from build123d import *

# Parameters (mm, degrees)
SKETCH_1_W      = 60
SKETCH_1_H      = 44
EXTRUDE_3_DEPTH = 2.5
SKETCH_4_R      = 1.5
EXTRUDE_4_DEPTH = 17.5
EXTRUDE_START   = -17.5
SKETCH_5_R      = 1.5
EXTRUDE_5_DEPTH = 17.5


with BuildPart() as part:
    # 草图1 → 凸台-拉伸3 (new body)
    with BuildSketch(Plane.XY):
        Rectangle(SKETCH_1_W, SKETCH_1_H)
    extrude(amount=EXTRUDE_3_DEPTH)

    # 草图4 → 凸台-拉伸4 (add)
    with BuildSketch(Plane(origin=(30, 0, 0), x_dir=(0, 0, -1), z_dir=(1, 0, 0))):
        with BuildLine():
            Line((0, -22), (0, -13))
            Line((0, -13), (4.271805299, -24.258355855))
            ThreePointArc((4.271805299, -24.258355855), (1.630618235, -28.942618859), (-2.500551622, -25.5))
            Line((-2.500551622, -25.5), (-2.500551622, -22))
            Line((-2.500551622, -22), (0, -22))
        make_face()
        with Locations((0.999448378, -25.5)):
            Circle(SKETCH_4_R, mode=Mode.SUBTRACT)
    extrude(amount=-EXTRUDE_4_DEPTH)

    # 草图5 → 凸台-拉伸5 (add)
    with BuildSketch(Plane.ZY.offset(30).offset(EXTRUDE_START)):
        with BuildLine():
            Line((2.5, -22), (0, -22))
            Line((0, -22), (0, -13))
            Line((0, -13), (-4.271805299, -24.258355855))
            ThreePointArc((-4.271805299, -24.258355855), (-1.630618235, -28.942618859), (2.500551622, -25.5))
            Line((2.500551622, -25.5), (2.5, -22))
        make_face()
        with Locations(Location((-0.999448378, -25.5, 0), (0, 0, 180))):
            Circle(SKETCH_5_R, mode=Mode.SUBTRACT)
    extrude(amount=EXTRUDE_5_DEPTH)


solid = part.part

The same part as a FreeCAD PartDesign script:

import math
import FreeCAD as App
import Part
import Sketcher
from FreeCAD import Vector

doc = App.newDocument("Part")
body = doc.addObject("PartDesign::Body", "Body")

# Sketch on XY plane
sketch1 = body.newObject("Sketcher::SketchObject", "Sketch")
sketch1.AttachmentSupport = (doc.getObject("XY_Plane"), [""])
sketch1.MapMode = "FlatFace"
sketch1.addGeometry(Part.LineSegment(Vector(-30, 22, 0), Vector(-30, -22, 0)), False)
sketch1.addGeometry(Part.LineSegment(Vector(-30, -22, 0), Vector(30, -22, 0)), False)
sketch1.addGeometry(Part.LineSegment(Vector(30, -22, 0), Vector(30, 22, 0)), False)
sketch1.addGeometry(Part.LineSegment(Vector(30, 22, 0), Vector(-30, 22, 0)), False)
sketch1.addConstraint(Sketcher.Constraint("Coincident", 0, 2, 1, 1))
sketch1.addConstraint(Sketcher.Constraint("Coincident", 1, 2, 2, 1))
sketch1.addConstraint(Sketcher.Constraint("Coincident", 2, 2, 3, 1))
sketch1.addConstraint(Sketcher.Constraint("Coincident", 3, 2, 0, 1))
sketch1.addConstraint(Sketcher.Constraint("Vertical", 0))
sketch1.addConstraint(Sketcher.Constraint("Horizontal", 1))
sketch1.addConstraint(Sketcher.Constraint("Vertical", 2))
sketch1.addConstraint(Sketcher.Constraint("Horizontal", 3))
sketch1.addConstraint(Sketcher.Constraint("Symmetric", 0, 2, 2, 2, -1, 1))
sketch1.addConstraint(Sketcher.Constraint("DistanceX", 1, 1, 1, 2, 60.0))
sketch1.addConstraint(Sketcher.Constraint("DistanceY", 0, 2, 0, 1, 44.0))
pad1 = body.newObject("PartDesign::Pad", "Pad")
pad1.Profile = sketch1
pad1.Length = 2.5

# Sketch on YZ plane
sketch2 = body.newObject("Sketcher::SketchObject", "Sketch001")
sketch2.AttachmentSupport = (doc.getObject("YZ_Plane"), [""])
sketch2.MapMode = "FlatFace"
sketch2.AttachmentOffset = App.Placement(Vector(0, 0, 30), App.Rotation())
sketch2.addGeometry(Part.LineSegment(Vector(-13, 0, 0), Vector(-22, 0, 0)), False)
sketch2.addGeometry(Part.LineSegment(Vector(-22, 0, 0), Vector(-22, 2.500552, 0)), False)
sketch2.addGeometry(Part.LineSegment(Vector(-22, 2.500552, 0), Vector(-25.5, 2.500552, 0)), False)
sketch2.addGeometry(Part.ArcOfCircle(Part.Circle(Vector(-25.5, -0.999448, 0), Vector(0, 0, 1), 3.5), math.radians(90), math.radians(290.778458)), False)
sketch2.addGeometry(Part.LineSegment(Vector(-24.258356, -4.271805, 0), Vector(-13, 0, 0)), False)
sketch2.addGeometry(Part.Circle(Vector(-25.5, -0.999448, 0), Vector(0, 0, 1), 1.5), False)
sketch2.addConstraint(Sketcher.Constraint("Coincident", 0, 2, 1, 1))
sketch2.addConstraint(Sketcher.Constraint("Coincident", 1, 2, 2, 1))
sketch2.addConstraint(Sketcher.Constraint("Tangent", 2, 2, 3, 1))
sketch2.addConstraint(Sketcher.Constraint("Tangent", 3, 2, 4, 1))
sketch2.addConstraint(Sketcher.Constraint("Coincident", 4, 2, 0, 1))
sketch2.addConstraint(Sketcher.Constraint("Horizontal", 0))
sketch2.addConstraint(Sketcher.Constraint("Vertical", 1))
sketch2.addConstraint(Sketcher.Constraint("Horizontal", 2))
sketch2.addConstraint(Sketcher.Constraint("Coincident", 5, 3, 3, 3))
sketch2.addConstraint(Sketcher.Constraint("PointOnObject", 0, 2, -1))
sketch2.addConstraint(Sketcher.Constraint("Diameter", 5, 3.0))
sketch2.addConstraint(Sketcher.Constraint("Radius", 3, 3.5))
sketch2.addConstraint(Sketcher.Constraint("DistanceX", 0, 2, 0, 1, 9.0))
sketch2.addConstraint(Sketcher.Constraint("DistanceX", 2, 2, 2, 1, 3.5))
sketch2.addConstraint(Sketcher.Constraint("DistanceX", 0, 2, -1, 1, 22.0))
sketch2.addConstraint(Sketcher.Constraint("DistanceY", 1, 1, 1, 2, 2.500552))
pad2 = body.newObject("PartDesign::Pad", "Pad001")
pad2.Profile = sketch2
pad2.Length = 17.5
pad2.Reversed = True

# Sketch on YZ plane
sketch3 = body.newObject("Sketcher::SketchObject", "Sketch002")
sketch3.AttachmentSupport = (doc.getObject("YZ_Plane"), [""])
sketch3.MapMode = "FlatFace"
sketch3.AttachmentOffset = App.Placement(Vector(0, 0, -12.5), App.Rotation())
sketch3.addGeometry(Part.LineSegment(Vector(-22, 2.5, 0), Vector(-22, 0, 0)), False)
sketch3.addGeometry(Part.LineSegment(Vector(-22, 0, 0), Vector(-13, 0, 0)), False)
sketch3.addGeometry(Part.LineSegment(Vector(-13, 0, 0), Vector(-24.258356, -4.271805, 0)), False)
sketch3.addGeometry(Part.ArcOfCircle(Part.Circle(Vector(-25.5, -0.999448, 0), Vector(0, 0, 1), 3.5), math.radians(90), math.radians(290.778458)), False)
sketch3.addGeometry(Part.LineSegment(Vector(-25.5, 2.500552, 0), Vector(-22, 2.5, 0)), False)
sketch3.addGeometry(Part.Circle(Vector(-25.5, -0.999448, 0), Vector(0, 0, 1), 1.5), False)
sketch3.addConstraint(Sketcher.Constraint("Coincident", 0, 2, 1, 1))
sketch3.addConstraint(Sketcher.Constraint("Coincident", 1, 2, 2, 1))
sketch3.addConstraint(Sketcher.Constraint("Tangent", 2, 2, 3, 2))
sketch3.addConstraint(Sketcher.Constraint("Coincident", 3, 1, 4, 1))
sketch3.addConstraint(Sketcher.Constraint("Coincident", 4, 2, 0, 1))
sketch3.addConstraint(Sketcher.Constraint("Vertical", 0))
sketch3.addConstraint(Sketcher.Constraint("Horizontal", 1))
sketch3.addConstraint(Sketcher.Constraint("Coincident", 5, 3, 3, 3))
sketch3.addConstraint(Sketcher.Constraint("PointOnObject", 0, 2, -1))
sketch3.addConstraint(Sketcher.Constraint("Vertical", 5, 3, 3, 1))
sketch3.addConstraint(Sketcher.Constraint("Diameter", 5, 3.0))
sketch3.addConstraint(Sketcher.Constraint("Radius", 3, 3.5))
sketch3.addConstraint(Sketcher.Constraint("DistanceX", 1, 1, 1, 2, 9.0))
sketch3.addConstraint(Sketcher.Constraint("DistanceY", 0, 2, 0, 1, 2.5))
sketch3.addConstraint(Sketcher.Constraint("DistanceX", 0, 2, -1, 1, 22.0))
sketch3.addConstraint(Sketcher.Constraint("Distance", 4, 3.5))
sketch3.addConstraint(Sketcher.Constraint("Distance", 2, 12.041549))
pad3 = body.newObject("PartDesign::Pad", "Pad002")
pad3.Profile = sketch3
pad3.Length = 17.5
pad3.Reversed = True

doc.recompute()
